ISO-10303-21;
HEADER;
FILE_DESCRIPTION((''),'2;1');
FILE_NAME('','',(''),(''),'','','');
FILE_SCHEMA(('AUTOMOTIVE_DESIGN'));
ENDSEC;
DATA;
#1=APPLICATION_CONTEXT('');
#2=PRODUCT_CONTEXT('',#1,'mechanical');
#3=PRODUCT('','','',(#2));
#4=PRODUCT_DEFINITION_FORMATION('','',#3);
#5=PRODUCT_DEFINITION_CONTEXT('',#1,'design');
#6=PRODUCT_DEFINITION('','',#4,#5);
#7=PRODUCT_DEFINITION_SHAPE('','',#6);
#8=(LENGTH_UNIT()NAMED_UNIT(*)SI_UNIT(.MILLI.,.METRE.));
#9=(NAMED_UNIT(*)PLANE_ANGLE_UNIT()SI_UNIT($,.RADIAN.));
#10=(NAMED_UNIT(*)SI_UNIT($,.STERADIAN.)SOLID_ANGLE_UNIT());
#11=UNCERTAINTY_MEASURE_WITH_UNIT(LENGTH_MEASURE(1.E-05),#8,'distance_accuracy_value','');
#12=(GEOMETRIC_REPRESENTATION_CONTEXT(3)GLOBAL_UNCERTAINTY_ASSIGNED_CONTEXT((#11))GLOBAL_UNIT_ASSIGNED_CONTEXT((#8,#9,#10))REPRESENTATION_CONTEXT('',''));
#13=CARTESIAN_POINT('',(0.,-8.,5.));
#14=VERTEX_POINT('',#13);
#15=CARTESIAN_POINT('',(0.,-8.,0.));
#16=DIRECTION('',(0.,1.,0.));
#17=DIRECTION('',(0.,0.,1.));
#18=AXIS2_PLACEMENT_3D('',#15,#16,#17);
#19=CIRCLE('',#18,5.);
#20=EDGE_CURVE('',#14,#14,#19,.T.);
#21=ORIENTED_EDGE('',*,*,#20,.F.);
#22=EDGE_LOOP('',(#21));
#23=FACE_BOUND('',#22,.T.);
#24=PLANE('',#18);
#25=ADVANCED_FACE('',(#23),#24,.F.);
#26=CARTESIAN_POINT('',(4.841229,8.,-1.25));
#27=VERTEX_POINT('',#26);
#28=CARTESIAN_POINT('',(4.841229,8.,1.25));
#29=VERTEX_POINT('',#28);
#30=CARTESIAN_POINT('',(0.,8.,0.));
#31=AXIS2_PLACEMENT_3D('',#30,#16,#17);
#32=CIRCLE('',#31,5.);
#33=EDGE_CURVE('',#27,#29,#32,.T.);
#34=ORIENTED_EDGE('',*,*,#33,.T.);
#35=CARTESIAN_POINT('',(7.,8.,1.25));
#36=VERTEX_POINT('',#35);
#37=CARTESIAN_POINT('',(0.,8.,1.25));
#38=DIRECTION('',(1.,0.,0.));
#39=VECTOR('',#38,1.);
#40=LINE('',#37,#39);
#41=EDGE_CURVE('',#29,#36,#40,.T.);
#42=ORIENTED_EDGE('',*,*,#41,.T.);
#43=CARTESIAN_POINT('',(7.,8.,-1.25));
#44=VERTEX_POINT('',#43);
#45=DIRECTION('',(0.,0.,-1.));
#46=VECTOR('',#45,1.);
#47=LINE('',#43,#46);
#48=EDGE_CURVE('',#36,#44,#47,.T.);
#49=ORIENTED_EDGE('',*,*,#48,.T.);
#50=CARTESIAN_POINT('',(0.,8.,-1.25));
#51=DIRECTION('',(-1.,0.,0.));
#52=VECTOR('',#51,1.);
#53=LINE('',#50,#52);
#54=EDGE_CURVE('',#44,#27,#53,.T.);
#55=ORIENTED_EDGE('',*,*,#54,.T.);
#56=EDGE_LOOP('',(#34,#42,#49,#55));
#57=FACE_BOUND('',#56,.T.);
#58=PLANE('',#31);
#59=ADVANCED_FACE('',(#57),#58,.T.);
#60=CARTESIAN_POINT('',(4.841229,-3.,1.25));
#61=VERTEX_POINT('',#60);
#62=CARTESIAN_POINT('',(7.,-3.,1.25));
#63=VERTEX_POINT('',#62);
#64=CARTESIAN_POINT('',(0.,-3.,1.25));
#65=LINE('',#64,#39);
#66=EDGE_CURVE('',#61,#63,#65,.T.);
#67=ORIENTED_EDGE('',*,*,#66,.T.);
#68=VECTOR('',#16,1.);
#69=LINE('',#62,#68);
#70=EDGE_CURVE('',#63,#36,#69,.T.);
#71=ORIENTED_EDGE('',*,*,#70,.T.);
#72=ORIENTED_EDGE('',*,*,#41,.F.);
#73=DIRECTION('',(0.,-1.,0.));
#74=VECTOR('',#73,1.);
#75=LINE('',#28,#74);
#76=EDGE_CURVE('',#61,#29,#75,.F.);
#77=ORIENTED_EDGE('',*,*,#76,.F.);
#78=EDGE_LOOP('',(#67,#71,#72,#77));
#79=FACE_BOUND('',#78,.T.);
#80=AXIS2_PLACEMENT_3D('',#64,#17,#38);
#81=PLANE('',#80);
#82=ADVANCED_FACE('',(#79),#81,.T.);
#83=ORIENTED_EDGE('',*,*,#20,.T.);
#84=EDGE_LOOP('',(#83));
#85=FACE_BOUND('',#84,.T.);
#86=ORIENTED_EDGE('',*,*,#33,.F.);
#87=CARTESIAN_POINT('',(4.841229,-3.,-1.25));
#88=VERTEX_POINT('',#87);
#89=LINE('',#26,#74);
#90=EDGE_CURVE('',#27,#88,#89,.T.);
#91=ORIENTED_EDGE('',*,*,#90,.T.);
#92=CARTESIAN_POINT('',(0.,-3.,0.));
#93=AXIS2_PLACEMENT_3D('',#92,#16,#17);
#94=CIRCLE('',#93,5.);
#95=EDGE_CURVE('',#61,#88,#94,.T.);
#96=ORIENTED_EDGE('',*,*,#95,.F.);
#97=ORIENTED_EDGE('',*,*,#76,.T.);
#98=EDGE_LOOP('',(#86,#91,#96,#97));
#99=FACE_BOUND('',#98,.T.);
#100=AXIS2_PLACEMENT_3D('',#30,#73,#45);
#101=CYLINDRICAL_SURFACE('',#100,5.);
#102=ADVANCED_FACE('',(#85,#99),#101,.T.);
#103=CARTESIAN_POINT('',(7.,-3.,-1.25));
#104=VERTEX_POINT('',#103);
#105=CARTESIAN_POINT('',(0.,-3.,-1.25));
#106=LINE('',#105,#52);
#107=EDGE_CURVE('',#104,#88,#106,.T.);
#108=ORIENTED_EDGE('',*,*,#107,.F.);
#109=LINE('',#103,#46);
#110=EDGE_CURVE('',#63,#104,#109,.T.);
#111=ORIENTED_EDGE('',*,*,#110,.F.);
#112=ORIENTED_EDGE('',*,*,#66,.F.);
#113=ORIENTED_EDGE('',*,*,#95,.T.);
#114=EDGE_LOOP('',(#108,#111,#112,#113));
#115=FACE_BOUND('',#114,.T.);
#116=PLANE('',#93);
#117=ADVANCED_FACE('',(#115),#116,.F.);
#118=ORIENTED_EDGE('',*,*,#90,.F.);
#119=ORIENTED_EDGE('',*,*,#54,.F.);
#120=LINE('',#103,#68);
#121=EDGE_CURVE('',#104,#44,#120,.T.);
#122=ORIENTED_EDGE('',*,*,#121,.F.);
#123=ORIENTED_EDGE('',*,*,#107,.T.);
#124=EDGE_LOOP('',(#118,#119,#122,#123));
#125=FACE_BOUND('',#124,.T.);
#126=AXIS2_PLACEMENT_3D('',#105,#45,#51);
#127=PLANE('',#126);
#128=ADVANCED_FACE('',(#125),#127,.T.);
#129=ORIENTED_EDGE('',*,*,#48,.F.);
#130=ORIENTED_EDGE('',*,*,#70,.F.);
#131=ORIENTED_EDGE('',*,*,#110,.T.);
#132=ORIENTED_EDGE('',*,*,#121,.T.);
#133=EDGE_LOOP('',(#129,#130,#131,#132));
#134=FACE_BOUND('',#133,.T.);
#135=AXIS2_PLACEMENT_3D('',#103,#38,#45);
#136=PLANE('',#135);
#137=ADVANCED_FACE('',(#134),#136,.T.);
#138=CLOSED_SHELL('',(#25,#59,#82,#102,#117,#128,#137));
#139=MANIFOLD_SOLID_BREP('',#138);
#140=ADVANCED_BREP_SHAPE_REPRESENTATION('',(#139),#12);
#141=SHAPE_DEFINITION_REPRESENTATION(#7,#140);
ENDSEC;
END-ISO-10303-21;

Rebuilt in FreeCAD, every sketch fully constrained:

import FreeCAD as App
import Part
import Sketcher
from FreeCAD import Vector


def add_polygon(sketch, points):
    """Adds a closed chain of lines whose ends are joined by coincident constraints."""
    first, n = sketch.GeometryCount, len(points)
    for a, b in zip(points, points[1:] + points[:1]):
        sketch.addGeometry(Part.LineSegment(App.Vector(*a, 0), App.Vector(*b, 0)), False)
    for i in range(n):
        sketch.addConstraint(Sketcher.Constraint("Coincident", first + i, 2, first + (i + 1) % n, 1))

doc = App.newDocument("Part")
body = doc.addObject("PartDesign::Body", "Body")

sketch1 = body.newObject("Sketcher::SketchObject", "Sketch")
sketch1.AttachmentSupport = (doc.getObject("XZ_Plane"), [""])
sketch1.MapMode = "FlatFace"
sketch1.addGeometry(Part.Circle(Vector(0, 0, 0), Vector(0, 0, 1), 5), False)
sketch1.addConstraint(Sketcher.Constraint("Coincident", 0, 3, -1, 1))
sketch1.addConstraint(Sketcher.Constraint("Diameter", 0, 10.0))
pad1 = body.newObject("PartDesign::Pad", "Pad")
pad1.Profile = sketch1
pad1.Length = 16
pad1.Midplane = True

sketch2 = body.newObject("Sketcher::SketchObject", "Sketch001")
sketch2.AttachmentSupport = (doc.getObject("XZ_Plane"), [""])
sketch2.MapMode = "FlatFace"
sketch2.AttachmentOffset = App.Placement(Vector(0, 0, -8), App.Rotation())
add_polygon(sketch2, [(0, -1.2), (0, 1.2), (7, 1.2), (7, -1.2)])
sketch2.addConstraint(Sketcher.Constraint("Vertical", 0))
sketch2.addConstraint(Sketcher.Constraint("Horizontal", 1))
sketch2.addConstraint(Sketcher.Constraint("Vertical", 2))
sketch2.addConstraint(Sketcher.Constraint("Horizontal", 3))
sketch2.addConstraint(Sketcher.Constraint("Symmetric", 0, 2, 3, 2, -1, 1))
sketch2.addConstraint(Sketcher.Constraint("DistanceX", 1, 1, 1, 2, 7.0))
sketch2.addConstraint(Sketcher.Constraint("DistanceY", 0, 1, 0, 2, 2.5))
pad2 = body.newObject("PartDesign::Pad", "Pad001")
pad2.Profile = sketch2
pad2.Length = 11

doc.recompute()
